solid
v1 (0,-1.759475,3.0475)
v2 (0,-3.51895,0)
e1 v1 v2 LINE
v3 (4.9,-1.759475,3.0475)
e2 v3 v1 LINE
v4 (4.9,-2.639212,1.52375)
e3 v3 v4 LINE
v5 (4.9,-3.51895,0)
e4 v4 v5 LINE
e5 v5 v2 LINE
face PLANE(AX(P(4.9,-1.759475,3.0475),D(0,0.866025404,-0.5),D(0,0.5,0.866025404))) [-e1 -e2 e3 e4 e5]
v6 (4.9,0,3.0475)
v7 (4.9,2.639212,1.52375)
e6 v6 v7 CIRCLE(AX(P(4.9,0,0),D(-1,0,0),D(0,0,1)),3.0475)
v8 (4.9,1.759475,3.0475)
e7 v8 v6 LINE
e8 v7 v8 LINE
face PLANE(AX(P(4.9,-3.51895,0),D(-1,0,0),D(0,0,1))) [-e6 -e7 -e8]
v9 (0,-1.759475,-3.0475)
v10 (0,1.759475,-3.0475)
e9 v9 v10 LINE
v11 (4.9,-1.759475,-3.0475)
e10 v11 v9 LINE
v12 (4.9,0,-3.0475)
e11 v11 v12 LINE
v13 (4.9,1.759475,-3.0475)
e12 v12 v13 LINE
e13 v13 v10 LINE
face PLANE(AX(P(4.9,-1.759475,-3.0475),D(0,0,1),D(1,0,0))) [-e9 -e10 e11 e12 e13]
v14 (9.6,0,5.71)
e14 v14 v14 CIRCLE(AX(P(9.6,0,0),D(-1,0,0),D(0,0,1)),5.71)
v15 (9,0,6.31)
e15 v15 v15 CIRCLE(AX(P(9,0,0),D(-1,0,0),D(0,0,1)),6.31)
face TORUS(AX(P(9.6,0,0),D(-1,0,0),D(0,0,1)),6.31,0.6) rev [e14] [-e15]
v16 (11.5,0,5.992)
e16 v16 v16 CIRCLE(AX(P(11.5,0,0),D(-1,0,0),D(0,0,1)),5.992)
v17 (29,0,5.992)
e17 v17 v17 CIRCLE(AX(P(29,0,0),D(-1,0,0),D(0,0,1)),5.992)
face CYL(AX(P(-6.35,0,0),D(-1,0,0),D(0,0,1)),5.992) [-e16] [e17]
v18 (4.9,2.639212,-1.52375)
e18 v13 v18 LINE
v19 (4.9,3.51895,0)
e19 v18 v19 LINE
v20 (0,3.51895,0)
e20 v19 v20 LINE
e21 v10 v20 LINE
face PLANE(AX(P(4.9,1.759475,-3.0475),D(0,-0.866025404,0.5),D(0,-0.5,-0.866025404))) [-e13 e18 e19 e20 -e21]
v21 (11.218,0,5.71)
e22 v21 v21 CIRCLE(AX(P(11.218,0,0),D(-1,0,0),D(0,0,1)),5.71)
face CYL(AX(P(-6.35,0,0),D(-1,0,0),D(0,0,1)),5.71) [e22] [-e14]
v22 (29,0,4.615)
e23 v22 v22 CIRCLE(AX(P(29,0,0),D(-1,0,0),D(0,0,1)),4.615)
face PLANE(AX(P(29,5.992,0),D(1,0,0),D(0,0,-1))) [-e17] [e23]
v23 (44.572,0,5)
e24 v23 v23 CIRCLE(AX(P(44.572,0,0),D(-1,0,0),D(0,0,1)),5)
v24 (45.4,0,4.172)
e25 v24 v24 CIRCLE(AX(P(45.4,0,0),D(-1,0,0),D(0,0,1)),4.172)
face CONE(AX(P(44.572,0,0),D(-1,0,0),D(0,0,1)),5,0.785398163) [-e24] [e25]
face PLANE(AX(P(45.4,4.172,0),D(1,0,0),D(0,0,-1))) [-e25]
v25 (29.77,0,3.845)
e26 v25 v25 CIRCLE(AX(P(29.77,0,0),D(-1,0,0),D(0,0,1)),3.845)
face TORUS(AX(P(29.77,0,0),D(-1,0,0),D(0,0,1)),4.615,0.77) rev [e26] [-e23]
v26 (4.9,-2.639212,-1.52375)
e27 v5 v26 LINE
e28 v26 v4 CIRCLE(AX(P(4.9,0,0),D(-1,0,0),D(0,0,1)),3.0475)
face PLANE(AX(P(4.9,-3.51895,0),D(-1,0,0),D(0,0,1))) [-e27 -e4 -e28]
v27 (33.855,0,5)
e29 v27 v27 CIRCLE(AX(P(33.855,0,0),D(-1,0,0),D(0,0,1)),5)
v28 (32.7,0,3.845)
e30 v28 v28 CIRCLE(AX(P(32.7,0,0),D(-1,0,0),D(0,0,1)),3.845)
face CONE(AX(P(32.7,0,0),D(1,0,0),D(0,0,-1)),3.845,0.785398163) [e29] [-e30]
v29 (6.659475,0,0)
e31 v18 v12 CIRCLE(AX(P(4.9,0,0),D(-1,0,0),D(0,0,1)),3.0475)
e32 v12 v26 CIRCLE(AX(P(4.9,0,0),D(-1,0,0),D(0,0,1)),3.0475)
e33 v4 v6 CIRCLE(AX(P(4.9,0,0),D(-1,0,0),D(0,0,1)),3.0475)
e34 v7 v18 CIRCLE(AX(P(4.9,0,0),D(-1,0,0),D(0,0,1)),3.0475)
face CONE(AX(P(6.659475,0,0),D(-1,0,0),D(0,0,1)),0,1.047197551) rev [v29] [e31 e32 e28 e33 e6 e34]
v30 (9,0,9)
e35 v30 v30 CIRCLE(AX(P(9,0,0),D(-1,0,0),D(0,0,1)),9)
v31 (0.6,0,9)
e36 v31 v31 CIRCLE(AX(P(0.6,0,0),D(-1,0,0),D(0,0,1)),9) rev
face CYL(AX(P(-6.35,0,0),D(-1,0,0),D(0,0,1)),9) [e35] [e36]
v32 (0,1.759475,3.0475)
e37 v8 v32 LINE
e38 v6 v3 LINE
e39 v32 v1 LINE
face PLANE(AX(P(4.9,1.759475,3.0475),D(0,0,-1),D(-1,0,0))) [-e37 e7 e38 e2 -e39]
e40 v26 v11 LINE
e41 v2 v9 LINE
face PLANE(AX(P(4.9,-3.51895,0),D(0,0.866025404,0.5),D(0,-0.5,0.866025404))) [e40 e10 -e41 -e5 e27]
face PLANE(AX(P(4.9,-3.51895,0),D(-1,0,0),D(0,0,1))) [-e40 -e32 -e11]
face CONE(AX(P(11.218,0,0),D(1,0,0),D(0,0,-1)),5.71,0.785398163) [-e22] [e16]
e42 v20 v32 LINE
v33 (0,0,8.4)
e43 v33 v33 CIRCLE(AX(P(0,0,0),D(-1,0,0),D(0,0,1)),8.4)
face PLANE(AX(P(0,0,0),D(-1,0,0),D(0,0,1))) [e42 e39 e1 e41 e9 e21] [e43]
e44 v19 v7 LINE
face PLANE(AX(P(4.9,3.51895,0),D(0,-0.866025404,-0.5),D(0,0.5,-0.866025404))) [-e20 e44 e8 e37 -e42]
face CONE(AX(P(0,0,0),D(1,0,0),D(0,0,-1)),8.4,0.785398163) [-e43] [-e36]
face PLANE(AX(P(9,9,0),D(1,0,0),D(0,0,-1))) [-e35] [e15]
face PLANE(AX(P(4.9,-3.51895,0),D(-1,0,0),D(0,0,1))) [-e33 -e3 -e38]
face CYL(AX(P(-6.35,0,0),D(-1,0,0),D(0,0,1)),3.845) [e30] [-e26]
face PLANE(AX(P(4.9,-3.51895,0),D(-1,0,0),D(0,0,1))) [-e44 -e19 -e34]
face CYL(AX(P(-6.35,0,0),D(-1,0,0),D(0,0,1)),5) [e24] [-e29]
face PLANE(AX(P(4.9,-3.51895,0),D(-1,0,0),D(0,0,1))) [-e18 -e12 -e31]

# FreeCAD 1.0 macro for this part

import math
import FreeCAD as App
import Part
import Sketcher

V = App.Vector
Q = App.Units.Quantity


def edges_at(feature, points):
    """Names of the edges that pass closest to the given points."""
    edges = feature.Shape.Edges
    near = lambda p: min(range(len(edges)), key=lambda i: edges[i].distToShape(Part.Vertex(*p))[0])
    return sorted({f"Edge{near(p) + 1}" for p in points})


def add_polygon(sketch, points):
    """Adds a closed chain of lines whose ends are joined by coincident constraints."""
    first, n = sketch.GeometryCount, len(points)
    for a, b in zip(points, points[1:] + points[:1]):
        sketch.addGeometry(Part.LineSegment(App.Vector(*a, 0), App.Vector(*b, 0)), False)
    for i in range(n):
        sketch.addConstraint(Sketcher.Constraint("Coincident", first + i, 2, first + (i + 1) % n, 1))

doc = App.newDocument("Part")
body = doc.addObject("PartDesign::Body", "Body")

sketch1 = body.newObject("Sketcher::SketchObject", "Sketch")
sketch1.AttachmentSupport = (doc.getObject("XY_Plane"), [""])
sketch1.MapMode = "FlatFace"
sketch1.addGeometry(Part.LineSegment(V(0, 9, 0), V(0, 0, 0)), False)
sketch1.addGeometry(Part.LineSegment(V(0, 0, 0), V(45.4, 0, 0)), False)
sketch1.addGeometry(Part.LineSegment(V(45.4, 0, 0), V(45.4, 4.17, 0)), False)
sketch1.addGeometry(Part.LineSegment(V(45.4, 4.17, 0), V(44.57, 5, 0)), False)
sketch1.addGeometry(Part.LineSegment(V(44.57, 5, 0), V(33.85, 5, 0)), False)
sketch1.addGeometry(Part.LineSegment(V(33.85, 5, 0), V(32.7, 3.85, 0)), False)
sketch1.addGeometry(Part.LineSegment(V(32.7, 3.85, 0), V(29.77, 3.85, 0)), False)
sketch1.addGeometry(Part.ArcOfCircle(Part.Circle(V(29.77, 4.61, 0), V(0, 0, 1), 0.77), math.radians(180), math.radians(270)), False)
sketch1.addGeometry(Part.LineSegment(V(29, 4.62, 0), V(29, 5.99, 0)), False)
sketch1.addGeometry(Part.LineSegment(V(29, 5.99, 0), V(11.5, 5.99, 0)), False)
sketch1.addGeometry(Part.LineSegment(V(11.5, 5.99, 0), V(11.22, 5.71, 0)), False)
sketch1.addGeometry(Part.LineSegment(V(11.22, 5.71, 0), V(9.6, 5.71, 0)), False)
sketch1.addGeometry(Part.ArcOfCircle(Part.Circle(V(9.6, 6.31, 0), V(0, 0, 1), 0.6), math.radians(180), math.radians(270)), False)
sketch1.addGeometry(Part.LineSegment(V(9, 6.31, 0), V(9, 9, 0)), False)
sketch1.addGeometry(Part.LineSegment(V(9, 9, 0), V(0, 9, 0)), False)
sketch1.addConstraint(Sketcher.Constraint("Coincident", 0, 2, 1, 1))
sketch1.addConstraint(Sketcher.Constraint("Coincident", 1, 2, 2, 1))
sketch1.addConstraint(Sketcher.Constraint("Coincident", 2, 2, 3, 1))
sketch1.addConstraint(Sketcher.Constraint("Coincident", 3, 2, 4, 1))
sketch1.addConstraint(Sketcher.Constraint("Coincident", 4, 2, 5, 1))
sketch1.addConstraint(Sketcher.Constraint("Coincident", 5, 2, 6, 1))
sketch1.addConstraint(Sketcher.Constraint("Tangent", 6, 2, 7, 2))
sketch1.addConstraint(Sketcher.Constraint("Tangent", 7, 1, 8, 1))
sketch1.addConstraint(Sketcher.Constraint("Coincident", 8, 2, 9, 1))
sketch1.addConstraint(Sketcher.Constraint("Coincident", 9, 2, 10, 1))
sketch1.addConstraint(Sketcher.Constraint("Coincident", 10, 2, 11, 1))
sketch1.addConstraint(Sketcher.Constraint("Tangent", 11, 2, 12, 2))
sketch1.addConstraint(Sketcher.Constraint("Tangent", 12, 1, 13, 1))
sketch1.addConstraint(Sketcher.Constraint("Coincident", 13, 2, 14, 1))
sketch1.addConstraint(Sketcher.Constraint("Coincident", 14, 2, 0, 1))
sketch1.addConstraint(Sketcher.Constraint("Vertical", 0))
sketch1.addConstraint(Sketcher.Constraint("Horizontal", 1))
sketch1.addConstraint(Sketcher.Constraint("Vertical", 2))
sketch1.addConstraint(Sketcher.Constraint("Horizontal", 4))
sketch1.addConstraint(Sketcher.Constraint("Horizontal", 6))
sketch1.addConstraint(Sketcher.Constraint("Vertical", 8))
sketch1.addConstraint(Sketcher.Constraint("Horizontal", 9))
sketch1.addConstraint(Sketcher.Constraint("Horizontal", 11))
sketch1.addConstraint(Sketcher.Constraint("Vertical", 13))
sketch1.addConstraint(Sketcher.Constraint("Horizontal", 14))
sketch1.addConstraint(Sketcher.Constraint("Coincident", 0, 2, -1, 1))
sketch1.addConstraint(Sketcher.Constraint("Perpendicular", 3, 5))
sketch1.addConstraint(Sketcher.Constraint("Parallel", 5, 10))
sketch1.addConstraint(Sketcher.Constraint("Equal", 14, 0))
sketch1.addConstraint(Sketcher.Constraint("Radius", 12, 0.6))
sketch1.addConstraint(Sketcher.Constraint("DistanceX", 14, 2, 14, 1, 9.0))
sketch1.addConstraint(Sketcher.Constraint("Angle", 3, Q("135 deg")))
sketch1.addConstraint(Sketcher.Constraint("Radius", 7, 0.77))
sketch1.addConstraint(Sketcher.Constraint("DistanceX", 1, 1, 1, 2, 45.4))
sketch1.addConstraint(Sketcher.Constraint("DistanceX", 9, 2, 9, 1, 17.5))
sketch1.addConstraint(Sketcher.Constraint("DistanceY", -1, 1, 3, 2, 5.0))
sketch1.addConstraint(Sketcher.Constraint("DistanceX", -1, 1, 7, 1, 29.0))
sketch1.addConstraint(Sketcher.Constraint("DistanceX", 6, 2, 6, 1, 2.93))
sketch1.addConstraint(Sketcher.Constraint("DistanceY", 13, 1, 13, 2, 2.69))
sketch1.addConstraint(Sketcher.Constraint("DistanceX", 4, 2, 4, 1, 10.717))
sketch1.addConstraint(Sketcher.Constraint("DistanceX", 11, 2, 11, 1, 1.618))
sketch1.addConstraint(Sketcher.Constraint("DistanceY", 2, 1, 2, 2, 4.172))
revolution = body.newObject("PartDesign::Revolution", "Revolution")
revolution.Profile = sketch1
revolution.ReferenceAxis = (sketch1, ["H_Axis"])
revolution.Angle = 360
doc.recompute()

chamfer = body.newObject("PartDesign::Chamfer", "Chamfer")
chamfer.Base = (revolution, edges_at(revolution, [(0, -9, 0)]))
chamfer.Size = 0.6

sketch2 = body.newObject("Sketcher::SketchObject", "Sketch001")
sketch2.AttachmentSupport = (doc.getObject("XY_Plane"), [""])
sketch2.MapMode = "FlatFace"
add_polygon(sketch2, [(4.9, 3), (0, 3), (0, 0), (6.7, 0)])
sketch2.addConstraint(Sketcher.Constraint("Horizontal", 0))
sketch2.addConstraint(Sketcher.Constraint("Vertical", 1))
sketch2.addConstraint(Sketcher.Constraint("Horizontal", 2))
sketch2.addConstraint(Sketcher.Constraint("Coincident", 1, 2, -1, 1))
sketch2.addConstraint(Sketcher.Constraint("Angle", 3, Q("120 deg")))
sketch2.addConstraint(Sketcher.Constraint("DistanceX", 0, 2, 0, 1, 4.9))
sketch2.addConstraint(Sketcher.Constraint("DistanceY", 1, 2, 1, 1, 3.0475))
groove = body.newObject("PartDesign::Groove", "Groove")
groove.Profile = sketch2
groove.ReferenceAxis = (sketch2, ["H_Axis"])
groove.Angle = 360

sketch3 = body.newObject("Sketcher::SketchObject", "Sketch002")
sketch3.AttachmentSupport = (doc.getObject("YZ_Plane"), [""])
sketch3.MapMode = "FlatFace"
add_polygon(sketch3, [(1.8, -3), (-1.8, -3), (-3.5, 0), (-1.8, 3), (1.8, 3), (3.5, 0)])
sketch3.addConstraint(Sketcher.Constraint("Horizontal", 0))
sketch3.addConstraint(Sketcher.Constraint("Horizontal", 3))
sketch3.addConstraint(Sketcher.Constraint("Symmetric", 0, 2, 3, 2, -1, 1))
sketch3.addConstraint(Sketcher.Constraint("Symmetric", 1, 2, 4, 2, -1, 1))
sketch3.addConstraint(Sketcher.Constraint("PointOnObject", 1, 2, -1))
sketch3.addConstraint(Sketcher.Constraint("Parallel", 2, 5))
sketch3.addConstraint(Sketcher.Constraint("Vertical", 0, 2, 2, 2))
sketch3.addConstraint(Sketcher.Constraint("Angle", 1, Q("120 deg")))
sketch3.addConstraint(Sketcher.Constraint("DistanceY", 0, 2, 2, 2, 6.095))
sketch3.addConstraint(Sketcher.Constraint("DistanceX", 0, 2, 0, 1, 3.51895))
pocket1 = body.newObject("PartDesign::Pocket", "Pocket")
pocket1.Profile = sketch3
pocket1.Length = 4.9
pocket1.Reversed = True

doc.recompute()
